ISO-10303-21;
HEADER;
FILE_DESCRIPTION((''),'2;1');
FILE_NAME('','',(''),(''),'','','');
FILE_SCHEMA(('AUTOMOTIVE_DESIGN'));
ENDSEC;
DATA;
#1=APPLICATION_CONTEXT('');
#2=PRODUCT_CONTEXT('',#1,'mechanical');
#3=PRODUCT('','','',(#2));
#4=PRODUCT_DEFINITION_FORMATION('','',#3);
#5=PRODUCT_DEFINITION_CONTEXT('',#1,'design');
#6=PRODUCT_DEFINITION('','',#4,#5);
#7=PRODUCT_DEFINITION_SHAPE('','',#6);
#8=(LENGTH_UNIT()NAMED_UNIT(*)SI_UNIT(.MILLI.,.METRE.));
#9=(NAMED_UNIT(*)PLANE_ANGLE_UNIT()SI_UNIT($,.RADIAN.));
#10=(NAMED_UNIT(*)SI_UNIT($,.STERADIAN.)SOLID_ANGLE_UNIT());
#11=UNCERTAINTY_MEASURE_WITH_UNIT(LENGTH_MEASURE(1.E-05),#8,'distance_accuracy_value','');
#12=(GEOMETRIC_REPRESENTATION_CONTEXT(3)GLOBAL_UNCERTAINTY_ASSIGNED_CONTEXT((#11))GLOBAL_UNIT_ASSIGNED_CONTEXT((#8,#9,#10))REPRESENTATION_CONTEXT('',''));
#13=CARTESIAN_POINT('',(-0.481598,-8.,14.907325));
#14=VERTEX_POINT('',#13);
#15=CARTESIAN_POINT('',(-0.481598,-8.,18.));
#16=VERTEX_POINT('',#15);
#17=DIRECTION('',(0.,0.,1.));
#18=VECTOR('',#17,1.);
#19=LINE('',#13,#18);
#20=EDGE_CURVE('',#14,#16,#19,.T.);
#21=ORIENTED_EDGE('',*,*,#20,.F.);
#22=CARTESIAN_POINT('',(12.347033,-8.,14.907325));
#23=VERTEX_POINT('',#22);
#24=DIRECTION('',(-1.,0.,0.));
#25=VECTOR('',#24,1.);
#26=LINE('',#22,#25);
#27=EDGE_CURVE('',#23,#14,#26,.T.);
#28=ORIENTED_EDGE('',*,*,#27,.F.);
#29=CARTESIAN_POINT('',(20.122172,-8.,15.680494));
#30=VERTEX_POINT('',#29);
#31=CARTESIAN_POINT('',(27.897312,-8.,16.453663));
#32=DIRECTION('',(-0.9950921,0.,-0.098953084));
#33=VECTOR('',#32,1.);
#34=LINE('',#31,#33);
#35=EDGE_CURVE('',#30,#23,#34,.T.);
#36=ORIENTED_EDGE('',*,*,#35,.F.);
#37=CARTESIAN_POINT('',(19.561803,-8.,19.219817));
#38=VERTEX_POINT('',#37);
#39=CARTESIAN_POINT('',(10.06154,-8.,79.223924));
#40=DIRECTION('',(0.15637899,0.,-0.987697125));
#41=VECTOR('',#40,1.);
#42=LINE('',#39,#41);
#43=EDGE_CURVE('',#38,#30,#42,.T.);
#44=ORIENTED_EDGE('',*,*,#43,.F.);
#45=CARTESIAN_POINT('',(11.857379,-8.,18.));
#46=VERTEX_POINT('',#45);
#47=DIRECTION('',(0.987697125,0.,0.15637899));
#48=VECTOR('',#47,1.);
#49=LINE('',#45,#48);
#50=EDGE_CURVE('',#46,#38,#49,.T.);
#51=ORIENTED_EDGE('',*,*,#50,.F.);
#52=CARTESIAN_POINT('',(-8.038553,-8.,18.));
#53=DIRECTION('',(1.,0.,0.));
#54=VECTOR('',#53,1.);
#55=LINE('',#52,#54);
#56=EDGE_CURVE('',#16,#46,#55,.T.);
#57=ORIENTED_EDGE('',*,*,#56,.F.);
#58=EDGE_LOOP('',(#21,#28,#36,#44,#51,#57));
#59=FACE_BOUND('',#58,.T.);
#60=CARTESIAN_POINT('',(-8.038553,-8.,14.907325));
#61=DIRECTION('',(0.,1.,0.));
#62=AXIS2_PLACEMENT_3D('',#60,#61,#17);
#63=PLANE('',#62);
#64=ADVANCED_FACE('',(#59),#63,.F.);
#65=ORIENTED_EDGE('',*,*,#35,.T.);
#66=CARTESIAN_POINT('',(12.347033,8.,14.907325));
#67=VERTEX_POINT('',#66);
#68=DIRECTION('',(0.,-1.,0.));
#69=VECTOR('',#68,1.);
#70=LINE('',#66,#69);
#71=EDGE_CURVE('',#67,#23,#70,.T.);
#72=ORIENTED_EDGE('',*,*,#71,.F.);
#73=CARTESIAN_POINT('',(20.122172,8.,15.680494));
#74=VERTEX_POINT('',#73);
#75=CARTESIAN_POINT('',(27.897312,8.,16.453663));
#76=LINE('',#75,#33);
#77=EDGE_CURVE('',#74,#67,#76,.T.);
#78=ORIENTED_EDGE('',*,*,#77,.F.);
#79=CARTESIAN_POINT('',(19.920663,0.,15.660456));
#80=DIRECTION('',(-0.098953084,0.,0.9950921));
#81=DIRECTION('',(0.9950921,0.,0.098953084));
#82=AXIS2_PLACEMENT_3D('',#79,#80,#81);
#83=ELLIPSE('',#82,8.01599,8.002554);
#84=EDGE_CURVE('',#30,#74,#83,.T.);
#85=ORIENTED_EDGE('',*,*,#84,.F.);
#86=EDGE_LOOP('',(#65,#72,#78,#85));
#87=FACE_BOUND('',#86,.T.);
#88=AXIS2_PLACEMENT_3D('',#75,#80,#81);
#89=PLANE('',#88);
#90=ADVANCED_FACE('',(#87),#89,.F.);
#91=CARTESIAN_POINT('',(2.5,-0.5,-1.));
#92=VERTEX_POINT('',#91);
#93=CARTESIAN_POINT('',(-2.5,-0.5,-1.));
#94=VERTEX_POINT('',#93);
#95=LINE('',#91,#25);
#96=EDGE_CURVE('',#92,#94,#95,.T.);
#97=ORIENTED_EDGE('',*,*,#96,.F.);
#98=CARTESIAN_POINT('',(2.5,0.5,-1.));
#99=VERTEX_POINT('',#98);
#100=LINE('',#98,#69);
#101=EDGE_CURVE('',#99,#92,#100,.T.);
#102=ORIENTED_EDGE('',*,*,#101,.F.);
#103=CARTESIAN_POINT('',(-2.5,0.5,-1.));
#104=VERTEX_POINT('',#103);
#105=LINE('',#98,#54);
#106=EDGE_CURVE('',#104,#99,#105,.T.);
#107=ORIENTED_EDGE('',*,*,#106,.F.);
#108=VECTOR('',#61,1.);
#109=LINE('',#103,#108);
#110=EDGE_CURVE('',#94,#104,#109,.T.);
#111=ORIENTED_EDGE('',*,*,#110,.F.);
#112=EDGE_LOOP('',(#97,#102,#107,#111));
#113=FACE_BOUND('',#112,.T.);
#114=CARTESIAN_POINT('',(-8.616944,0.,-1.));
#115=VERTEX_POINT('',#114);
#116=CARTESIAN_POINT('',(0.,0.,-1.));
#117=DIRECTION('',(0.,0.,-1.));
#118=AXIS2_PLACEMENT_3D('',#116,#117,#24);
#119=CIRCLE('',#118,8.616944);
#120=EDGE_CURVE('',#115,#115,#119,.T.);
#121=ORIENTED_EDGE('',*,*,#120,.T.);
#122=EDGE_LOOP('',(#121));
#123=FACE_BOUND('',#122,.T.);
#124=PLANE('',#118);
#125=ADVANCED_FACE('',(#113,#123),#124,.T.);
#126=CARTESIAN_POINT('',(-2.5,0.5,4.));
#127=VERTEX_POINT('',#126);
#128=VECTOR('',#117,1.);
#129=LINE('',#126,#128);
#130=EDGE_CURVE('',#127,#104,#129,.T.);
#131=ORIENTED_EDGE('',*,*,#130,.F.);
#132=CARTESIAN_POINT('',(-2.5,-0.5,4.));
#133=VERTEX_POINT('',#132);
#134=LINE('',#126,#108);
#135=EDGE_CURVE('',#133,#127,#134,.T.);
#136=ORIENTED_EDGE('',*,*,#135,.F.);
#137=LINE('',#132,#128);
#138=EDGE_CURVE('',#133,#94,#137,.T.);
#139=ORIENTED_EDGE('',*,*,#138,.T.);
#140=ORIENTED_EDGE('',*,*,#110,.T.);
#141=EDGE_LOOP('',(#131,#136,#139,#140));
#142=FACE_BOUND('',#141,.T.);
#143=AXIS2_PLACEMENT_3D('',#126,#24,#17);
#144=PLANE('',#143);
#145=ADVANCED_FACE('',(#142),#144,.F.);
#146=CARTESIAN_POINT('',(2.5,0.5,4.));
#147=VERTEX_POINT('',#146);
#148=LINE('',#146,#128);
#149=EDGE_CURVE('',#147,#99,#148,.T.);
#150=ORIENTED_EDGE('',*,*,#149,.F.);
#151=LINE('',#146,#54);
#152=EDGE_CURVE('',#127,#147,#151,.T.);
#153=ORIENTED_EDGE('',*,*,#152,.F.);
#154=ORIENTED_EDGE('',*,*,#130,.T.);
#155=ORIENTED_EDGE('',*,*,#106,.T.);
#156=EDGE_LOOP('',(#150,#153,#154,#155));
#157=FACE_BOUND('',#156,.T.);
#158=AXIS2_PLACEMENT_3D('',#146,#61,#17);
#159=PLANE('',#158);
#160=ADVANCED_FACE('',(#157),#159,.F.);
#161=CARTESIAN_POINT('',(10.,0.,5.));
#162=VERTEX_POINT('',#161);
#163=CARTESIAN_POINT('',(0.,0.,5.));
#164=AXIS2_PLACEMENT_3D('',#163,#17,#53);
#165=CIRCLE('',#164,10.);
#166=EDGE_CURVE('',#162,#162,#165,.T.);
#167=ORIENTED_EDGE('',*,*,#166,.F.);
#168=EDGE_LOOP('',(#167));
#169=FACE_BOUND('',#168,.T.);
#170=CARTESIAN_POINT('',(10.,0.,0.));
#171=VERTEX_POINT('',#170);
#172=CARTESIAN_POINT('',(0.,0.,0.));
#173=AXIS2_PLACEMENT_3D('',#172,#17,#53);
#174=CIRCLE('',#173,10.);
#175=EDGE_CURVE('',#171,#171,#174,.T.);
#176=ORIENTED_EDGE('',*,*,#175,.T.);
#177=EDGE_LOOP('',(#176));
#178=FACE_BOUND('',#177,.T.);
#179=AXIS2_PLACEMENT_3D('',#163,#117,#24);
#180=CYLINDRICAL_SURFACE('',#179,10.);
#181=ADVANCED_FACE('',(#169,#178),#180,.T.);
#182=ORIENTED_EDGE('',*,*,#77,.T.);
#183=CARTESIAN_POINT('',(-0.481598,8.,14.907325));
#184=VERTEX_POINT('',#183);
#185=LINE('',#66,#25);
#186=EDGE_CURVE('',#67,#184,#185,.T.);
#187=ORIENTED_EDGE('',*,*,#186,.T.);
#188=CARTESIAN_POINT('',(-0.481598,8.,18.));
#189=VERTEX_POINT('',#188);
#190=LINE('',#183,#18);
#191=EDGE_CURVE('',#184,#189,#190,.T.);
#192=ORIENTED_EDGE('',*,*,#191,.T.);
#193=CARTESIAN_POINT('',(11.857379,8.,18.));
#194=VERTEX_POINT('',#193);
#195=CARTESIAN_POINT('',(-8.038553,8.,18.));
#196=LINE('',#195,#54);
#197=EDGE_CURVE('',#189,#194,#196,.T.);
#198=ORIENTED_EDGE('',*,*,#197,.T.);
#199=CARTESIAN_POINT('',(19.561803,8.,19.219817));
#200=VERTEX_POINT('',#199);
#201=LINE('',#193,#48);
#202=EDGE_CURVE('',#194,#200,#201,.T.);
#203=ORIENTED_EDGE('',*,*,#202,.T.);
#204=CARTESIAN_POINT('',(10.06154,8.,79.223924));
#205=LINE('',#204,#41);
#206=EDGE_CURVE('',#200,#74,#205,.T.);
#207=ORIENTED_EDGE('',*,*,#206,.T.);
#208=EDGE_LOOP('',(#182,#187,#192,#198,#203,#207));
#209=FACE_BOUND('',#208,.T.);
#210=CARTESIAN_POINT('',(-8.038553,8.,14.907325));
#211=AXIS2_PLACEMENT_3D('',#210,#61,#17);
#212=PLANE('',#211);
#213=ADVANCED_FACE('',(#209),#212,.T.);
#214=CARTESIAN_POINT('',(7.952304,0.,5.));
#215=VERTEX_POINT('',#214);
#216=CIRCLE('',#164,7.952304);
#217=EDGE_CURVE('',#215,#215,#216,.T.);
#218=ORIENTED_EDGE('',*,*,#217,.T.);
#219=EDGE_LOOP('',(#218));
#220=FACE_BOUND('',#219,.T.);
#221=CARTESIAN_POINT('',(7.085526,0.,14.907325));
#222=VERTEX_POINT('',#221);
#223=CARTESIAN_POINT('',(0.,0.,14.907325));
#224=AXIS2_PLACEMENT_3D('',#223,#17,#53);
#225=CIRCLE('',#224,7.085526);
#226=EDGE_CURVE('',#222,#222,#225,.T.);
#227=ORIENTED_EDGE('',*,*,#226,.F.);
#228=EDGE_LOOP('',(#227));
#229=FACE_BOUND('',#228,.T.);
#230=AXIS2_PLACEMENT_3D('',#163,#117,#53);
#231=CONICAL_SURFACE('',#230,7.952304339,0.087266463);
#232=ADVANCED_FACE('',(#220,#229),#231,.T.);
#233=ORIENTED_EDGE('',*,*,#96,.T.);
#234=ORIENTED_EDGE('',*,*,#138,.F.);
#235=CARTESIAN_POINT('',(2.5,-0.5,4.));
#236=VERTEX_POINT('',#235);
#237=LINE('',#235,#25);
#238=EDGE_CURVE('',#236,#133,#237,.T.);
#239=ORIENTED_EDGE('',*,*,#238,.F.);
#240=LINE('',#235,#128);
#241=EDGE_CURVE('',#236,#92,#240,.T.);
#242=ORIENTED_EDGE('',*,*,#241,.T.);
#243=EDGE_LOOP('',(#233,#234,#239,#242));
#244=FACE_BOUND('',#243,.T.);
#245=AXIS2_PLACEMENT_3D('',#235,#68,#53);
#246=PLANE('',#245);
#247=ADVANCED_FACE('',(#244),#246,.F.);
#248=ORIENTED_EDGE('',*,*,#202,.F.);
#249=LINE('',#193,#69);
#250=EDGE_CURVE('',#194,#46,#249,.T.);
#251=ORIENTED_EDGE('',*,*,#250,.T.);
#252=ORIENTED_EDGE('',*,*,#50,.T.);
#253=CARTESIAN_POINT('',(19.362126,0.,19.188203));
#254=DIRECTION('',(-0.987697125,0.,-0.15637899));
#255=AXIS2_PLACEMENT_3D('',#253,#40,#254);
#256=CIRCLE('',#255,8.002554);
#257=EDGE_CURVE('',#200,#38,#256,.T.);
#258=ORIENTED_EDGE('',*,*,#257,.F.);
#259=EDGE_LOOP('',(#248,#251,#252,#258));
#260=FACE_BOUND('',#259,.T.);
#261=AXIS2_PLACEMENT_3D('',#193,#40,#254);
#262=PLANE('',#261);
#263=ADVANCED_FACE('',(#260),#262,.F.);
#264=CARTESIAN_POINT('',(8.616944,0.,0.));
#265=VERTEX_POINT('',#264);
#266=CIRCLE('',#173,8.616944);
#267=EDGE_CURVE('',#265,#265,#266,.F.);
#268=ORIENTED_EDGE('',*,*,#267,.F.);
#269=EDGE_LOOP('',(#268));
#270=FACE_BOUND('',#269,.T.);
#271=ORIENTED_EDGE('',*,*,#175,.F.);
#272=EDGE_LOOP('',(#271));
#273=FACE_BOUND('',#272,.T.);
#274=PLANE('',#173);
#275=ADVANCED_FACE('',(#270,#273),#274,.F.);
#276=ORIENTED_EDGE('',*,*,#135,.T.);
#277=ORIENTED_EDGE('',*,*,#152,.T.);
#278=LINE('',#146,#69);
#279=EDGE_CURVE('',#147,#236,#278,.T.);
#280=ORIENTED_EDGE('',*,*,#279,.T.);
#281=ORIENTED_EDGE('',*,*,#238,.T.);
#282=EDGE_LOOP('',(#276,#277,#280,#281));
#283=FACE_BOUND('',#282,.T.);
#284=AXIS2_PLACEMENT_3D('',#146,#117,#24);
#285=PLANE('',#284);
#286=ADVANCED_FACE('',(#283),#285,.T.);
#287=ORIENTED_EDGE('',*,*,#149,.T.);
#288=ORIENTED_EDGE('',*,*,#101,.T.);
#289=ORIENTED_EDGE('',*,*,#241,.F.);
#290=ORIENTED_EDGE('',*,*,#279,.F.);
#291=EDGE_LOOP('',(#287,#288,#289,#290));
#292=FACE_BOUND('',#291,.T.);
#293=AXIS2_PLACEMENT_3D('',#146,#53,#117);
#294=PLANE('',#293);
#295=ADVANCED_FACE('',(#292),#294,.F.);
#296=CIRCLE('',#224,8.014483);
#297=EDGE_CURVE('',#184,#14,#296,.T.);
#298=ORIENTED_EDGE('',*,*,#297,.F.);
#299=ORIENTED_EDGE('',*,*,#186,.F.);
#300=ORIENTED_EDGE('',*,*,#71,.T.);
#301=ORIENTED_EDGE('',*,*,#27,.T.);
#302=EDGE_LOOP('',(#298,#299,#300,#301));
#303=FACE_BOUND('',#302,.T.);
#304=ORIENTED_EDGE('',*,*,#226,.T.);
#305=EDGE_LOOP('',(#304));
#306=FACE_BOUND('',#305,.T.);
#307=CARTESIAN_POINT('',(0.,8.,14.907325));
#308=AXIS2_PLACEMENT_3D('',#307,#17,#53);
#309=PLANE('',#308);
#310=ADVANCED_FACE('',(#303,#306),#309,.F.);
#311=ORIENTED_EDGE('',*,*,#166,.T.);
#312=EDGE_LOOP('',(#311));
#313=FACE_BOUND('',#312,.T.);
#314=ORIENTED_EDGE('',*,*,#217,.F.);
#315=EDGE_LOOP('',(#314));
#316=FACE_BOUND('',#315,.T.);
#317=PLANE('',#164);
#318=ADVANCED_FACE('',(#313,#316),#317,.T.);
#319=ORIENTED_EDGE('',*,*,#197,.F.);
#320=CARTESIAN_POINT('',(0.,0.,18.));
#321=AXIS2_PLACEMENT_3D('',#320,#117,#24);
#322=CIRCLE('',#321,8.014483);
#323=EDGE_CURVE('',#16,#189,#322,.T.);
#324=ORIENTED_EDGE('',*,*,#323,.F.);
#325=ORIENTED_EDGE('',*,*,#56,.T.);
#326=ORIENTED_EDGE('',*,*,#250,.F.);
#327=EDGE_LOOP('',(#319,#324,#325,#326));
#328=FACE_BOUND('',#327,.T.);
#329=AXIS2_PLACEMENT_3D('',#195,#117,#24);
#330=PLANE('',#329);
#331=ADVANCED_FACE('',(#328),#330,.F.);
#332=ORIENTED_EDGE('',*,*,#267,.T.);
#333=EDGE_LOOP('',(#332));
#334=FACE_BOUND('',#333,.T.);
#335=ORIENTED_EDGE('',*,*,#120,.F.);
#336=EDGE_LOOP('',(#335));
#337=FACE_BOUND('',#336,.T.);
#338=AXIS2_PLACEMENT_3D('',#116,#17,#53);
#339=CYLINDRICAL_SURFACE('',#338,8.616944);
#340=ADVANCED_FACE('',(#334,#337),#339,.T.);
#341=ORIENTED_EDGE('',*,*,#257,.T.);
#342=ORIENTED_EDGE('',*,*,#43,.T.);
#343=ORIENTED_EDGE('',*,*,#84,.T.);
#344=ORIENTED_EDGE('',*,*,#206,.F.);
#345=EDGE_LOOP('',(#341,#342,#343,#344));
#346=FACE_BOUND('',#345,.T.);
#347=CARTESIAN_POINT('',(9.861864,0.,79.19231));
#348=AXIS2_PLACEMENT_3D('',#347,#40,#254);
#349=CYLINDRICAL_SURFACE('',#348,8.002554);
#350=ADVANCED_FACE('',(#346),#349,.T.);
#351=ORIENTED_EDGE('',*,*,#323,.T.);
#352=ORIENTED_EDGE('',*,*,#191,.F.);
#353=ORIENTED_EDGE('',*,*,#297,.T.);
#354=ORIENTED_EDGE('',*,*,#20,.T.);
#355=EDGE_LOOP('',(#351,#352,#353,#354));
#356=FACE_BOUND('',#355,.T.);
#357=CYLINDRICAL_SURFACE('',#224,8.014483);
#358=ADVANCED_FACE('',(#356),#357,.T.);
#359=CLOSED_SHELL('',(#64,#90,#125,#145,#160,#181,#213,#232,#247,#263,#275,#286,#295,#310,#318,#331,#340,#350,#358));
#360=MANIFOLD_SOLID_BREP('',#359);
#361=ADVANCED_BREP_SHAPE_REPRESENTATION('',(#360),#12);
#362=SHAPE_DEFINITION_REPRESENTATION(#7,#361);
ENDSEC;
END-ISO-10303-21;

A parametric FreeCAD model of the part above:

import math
import FreeCAD as App
import Part
import Sketcher
from FreeCAD import Vector


def add_polygon(sketch, points):
    """Adds a closed chain of lines whose ends are joined by coincident constraints."""
    first, n = sketch.GeometryCount, len(points)
    for a, b in zip(points, points[1:] + points[:1]):
        sketch.addGeometry(Part.LineSegment(App.Vector(*a, 0), App.Vector(*b, 0)), False)
    for i in range(n):
        sketch.addConstraint(Sketcher.Constraint("Coincident", first + i, 2, first + (i + 1) % n, 1))

doc = App.newDocument("Part")
body = doc.addObject("PartDesign::Body", "Body")

sketch1 = doc.addObject("Sketcher::SketchObject", "Sketch")
body.addObject(sketch1)
sketch1.AttachmentSupport = (doc.XY_Plane, [""])
sketch1.MapMode = "FlatFace"
sketch1.addGeometry(Part.Circle(Vector(0, 0, 0), Vector(0, 0, 1), 10), False)
sketch1.addConstraint([
    Sketcher.Constraint("Coincident", 0, 3, -1, 1),
    Sketcher.Constraint("Diameter", 0, 20.0),
])
pad1 = doc.addObject("PartDesign::Pad", "Pad")
body.addObject(pad1)
pad1.Profile = sketch1
pad1.Length = 5

sketch2 = doc.addObject("Sketcher::SketchObject", "Sketch001")
body.addObject(sketch2)
sketch2.AttachmentSupport = (doc.XY_Plane, [""])
sketch2.MapMode = "FlatFace"
sketch2.AttachmentOffset = App.Placement(Vector(0, 0, 5), App.Rotation())
sketch2.addGeometry(Part.Circle(Vector(0, 0, 0), Vector(0, 0, 1), 8), False)
sketch2.addConstraint([
    Sketcher.Constraint("Coincident", 0, 3, -1, 1),
    Sketcher.Constraint("Diameter", 0, 15.904609),
])
pad2 = doc.addObject("PartDesign::Pad", "Pad001")
body.addObject(pad2)
pad2.Profile = sketch2
pad2.Length = 10
pad2.TaperAngle = -5

sketch3 = doc.addObject("Sketcher::SketchObject", "Sketch002")
body.addObject(sketch3)
sketch3.AttachmentSupport = (doc.XZ_Plane, [""])
sketch3.MapMode = "FlatFace"
add_polygon(sketch3, [(-8, 14.9), (-8, 18), (11.9, 18), (27.3, 20.4), (27.9, 16.5), (12.3, 14.9)])
sketch3.addConstraint([
    Sketcher.Constraint("Vertical", 0),
    Sketcher.Constraint("Horizontal", 1),
    Sketcher.Constraint("Horizontal", 5),
    Sketcher.Constraint("Perpendicular", 2, 3),
    Sketcher.Constraint("DistanceY", -1, 1, 0, 2, 18.0),
    Sketcher.Constraint("Distance", 2, 15.600781),
    Sketcher.Constraint("Distance", 3, 4.035621),
    Sketcher.Constraint("DistanceX", 1, 1, 1, 2, 19.895933),
    Sketcher.Constraint("DistanceX", 5, 2, 5, 1, 20.385586),
    Sketcher.Constraint("DistanceY", 0, 1, 0, 2, 3.092675),
    Sketcher.Constraint("DistanceX", -1, 1, 1, 2, 11.857379),
    Sketcher.Constraint("DistanceX", 0, 2, 2, 2, 35.304779),
])
pad3 = doc.addObject("PartDesign::Pad", "Pad002")
body.addObject(pad3)
pad3.Profile = sketch3
pad3.Type = "TwoLengths"
pad3.Length = 8
pad3.Length2 = 8
pad3.Reversed = True

sketch4 = doc.addObject("Sketcher::SketchObject", "Sketch003")
body.addObject(sketch4)
sketch4.AttachmentSupport = (doc.XY_Plane, [""])
sketch4.MapMode = "FlatFace"
sketch4.AttachmentOffset = App.Placement(Vector(0, 0, 14.907325), App.Rotation())
sketch4.addGeometry([
    Part.LineSegment(Vector(-8, 8, 0), Vector(0, 8, 0)),
    Part.ArcOfCircle(Part.Circle(Vector(0, 0, 0), Vector(0, 0, 1), 8), math.radians(93), math.radians(267)),
    Part.LineSegment(Vector(0, -8, 0), Vector(-8, -8, 0)),
    Part.LineSegment(Vector(-8, -8, 0), Vector(-8, 8, 0)),
], False)
sketch4.addConstraint([
    Sketcher.Constraint("Coincident", 0, 2, 1, 1),
    Sketcher.Constraint("Coincident", 1, 2, 2, 1),
    Sketcher.Constraint("Coincident", 2, 2, 3, 1),
    Sketcher.Constraint("Coincident", 3, 2, 0, 1),
    Sketcher.Constraint("Horizontal", 0),
    Sketcher.Constraint("Horizontal", 2),
    Sketcher.Constraint("Vertical", 3),
    Sketcher.Constraint("Coincident", 1, 3, -1, 1),
    Sketcher.Constraint("Vertical", 0, 2, 1, 2),
    Sketcher.Constraint("DistanceY", 3, 1, 3, 2, 16.0),
    Sketcher.Constraint("Radius", 1, 8.014483),
    Sketcher.Constraint("DistanceX", 0, 1, 0, 2, 7.556955),
])
pocket1 = doc.addObject("PartDesign::Pocket", "Pocket")
body.addObject(pocket1)
pocket1.Profile = sketch4
pocket1.Type = "ThroughAll"
pocket1.Reversed = True

sketch5 = doc.addObject("Sketcher::SketchObject", "Sketch004")
body.addObject(sketch5)
sketch5.Placement = App.Placement(Vector(-2.490226, 0, 15.728389), App.Rotation(Vector(0.987697125, 0, 0.15637899), Vector(0, 0.999999999, 0), Vector(-0.15637899, 0, 0.987697125), "ZXY"))
sketch5.addGeometry([
    Part.LineSegment(Vector(30, 8, 0), Vector(22, 8, 0)),
    Part.ArcOfCircle(Part.Circle(Vector(22, 0, 0), Vector(0, 0, 1), 8), math.radians(0), math.radians(89)),
    Part.LineSegment(Vector(30, 0, 0), Vector(30, 8, 0)),
    Part.LineSegment(Vector(30, -8, 0), Vector(30, 0, 0)),
    Part.ArcOfCircle(Part.Circle(Vector(22, 0, 0), Vector(0, 0, 1), 8), math.radians(-89), math.radians(0)),
    Part.LineSegment(Vector(22, -8, 0), Vector(30, -8, 0)),
], False)
sketch5.addConstraint([
    Sketcher.Constraint("Coincident", 0, 2, 1, 2),
    Sketcher.Constraint("Tangent", 1, 1, 2, 1),
    Sketcher.Constraint("Coincident", 2, 2, 0, 1),
    Sketcher.Constraint("Tangent", 3, 2, 4, 2),
    Sketcher.Constraint("Coincident", 4, 1, 5, 1),
    Sketcher.Constraint("Coincident", 5, 2, 3, 1),
    Sketcher.Constraint("Horizontal", 0),
    Sketcher.Constraint("Vertical", 2),
    Sketcher.Constraint("Vertical", 3),
    Sketcher.Constraint("Horizontal", 5),
    Sketcher.Constraint("Coincident", 4, 3, 1, 3),
    Sketcher.Constraint("Equal", 1, 4),
    Sketcher.Constraint("Symmetric", 0, 2, 4, 1, -1),
    Sketcher.Constraint("DistanceY", 2, 1, 2, 2, 8.0),
    Sketcher.Constraint("Radius", 1, 8.002554),
    Sketcher.Constraint("DistanceX", -1, 1, 1, 3, 22.124548),
])
pocket2 = doc.addObject("PartDesign::Pocket", "Pocket001")
body.addObject(pocket2)
pocket2.Profile = sketch5
pocket2.Type = "ThroughAll"
pocket2.Midplane = True

sketch6 = doc.addObject("Sketcher::SketchObject", "Sketch005")
body.addObject(sketch6)
sketch6.AttachmentSupport = (doc.XY_Plane, [""])
sketch6.MapMode = "FlatFace"
sketch6.addGeometry(Part.Circle(Vector(0, 0, 0), Vector(0, 0, 1), 9), False)
sketch6.addConstraint([
    Sketcher.Constraint("Coincident", 0, 3, -1, 1),
    Sketcher.Constraint("Diameter", 0, 17.233888),
])
pad4 = doc.addObject("PartDesign::Pad", "Pad003")
body.addObject(pad4)
pad4.Profile = sketch6
pad4.Length = 1
pad4.Reversed = True

sketch7 = doc.addObject("Sketcher::SketchObject", "Sketch006")
body.addObject(sketch7)
sketch7.AttachmentSupport = (doc.XY_Plane, [""])
sketch7.MapMode = "FlatFace"
sketch7.AttachmentOffset = App.Placement(Vector(0, 0, -1), App.Rotation())
add_polygon(sketch7, [(2.5, 0.5), (2.5, -0.5), (-2.5, -0.5), (-2.5, 0.5)])
sketch7.addConstraint([
    Sketcher.Constraint("Vertical", 0),
    Sketcher.Constraint("Horizontal", 1),
    Sketcher.Constraint("Vertical", 2),
    Sketcher.Constraint("Horizontal", 3),
    Sketcher.Constraint("Symmetric", 0, 2, 2, 2, -1, 1),
    Sketcher.Constraint("DistanceX", 1, 2, 1, 1, 5.0),
    Sketcher.Constraint("DistanceY", 0, 2, 0, 1, 1.0),
])
pocket3 = doc.addObject("PartDesign::Pocket", "Pocket002")
body.addObject(pocket3)
pocket3.Profile = sketch7
pocket3.Length = 5
pocket3.Reversed = True

doc.recompute()
